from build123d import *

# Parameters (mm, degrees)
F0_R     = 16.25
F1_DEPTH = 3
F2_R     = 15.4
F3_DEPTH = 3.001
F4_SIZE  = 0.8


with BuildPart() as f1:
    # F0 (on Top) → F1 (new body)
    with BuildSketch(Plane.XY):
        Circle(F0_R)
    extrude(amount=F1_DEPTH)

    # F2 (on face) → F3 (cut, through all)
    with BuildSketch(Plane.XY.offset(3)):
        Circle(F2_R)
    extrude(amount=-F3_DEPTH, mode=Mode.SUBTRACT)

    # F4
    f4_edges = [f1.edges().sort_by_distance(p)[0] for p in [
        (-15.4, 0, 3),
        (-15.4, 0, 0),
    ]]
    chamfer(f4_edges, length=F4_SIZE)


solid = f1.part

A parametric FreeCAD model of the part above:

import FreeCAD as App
import Part
import Sketcher
from FreeCAD import Vector


def edges_at(feature, points):
    """Names of the edges that pass closest to the given points."""
    edges = feature.Shape.Edges
    near = lambda p: min(range(len(edges)), key=lambda i: edges[i].distToShape(Part.Vertex(*p))[0])
    return sorted({f"Edge{near(p) + 1}" for p in points})

doc = App.newDocument("Part")
params = doc.addObject("Spreadsheet::Sheet", "Params")
for row, (alias, value) in enumerate([
    ("sketch1_diameter", "32.5 mm"),
    ("pad1_length", "3 mm"),
    ("sketch2_diameter", "30.8 mm"),
    ("chamfer_size", "0.8 mm"),
], start=1):
    params.set(f"A{row}", alias)
    params.set(f"B{row}", "=" + value)
    params.setAlias(f"B{row}", alias)

body = doc.addObject("PartDesign::Body", "Body")

sketch1 = body.newObject("Sketcher::SketchObject", "Sketch")
sketch1.AttachmentSupport = (doc.getObject("XY_Plane"), [""])
sketch1.MapMode = "FlatFace"
sketch1.addGeometry(Part.Circle(Vector(0, 0, 0), Vector(0, 0, 1), 16), False)
sketch1.addConstraint([
    Sketcher.Constraint("Coincident", 0, 3, -1, 1),
    Sketcher.Constraint("Diameter", 0, 32.5),
])
sketch1.setExpression("Constraints[1]", "Params.sketch1_diameter")
pad1 = body.newObject("PartDesign::Pad", "Pad")
pad1.Profile = sketch1
pad1.setExpression("Length", "Params.pad1_length")

sketch2 = body.newObject("Sketcher::SketchObject", "Sketch001")
sketch2.AttachmentSupport = (doc.getObject("XY_Plane"), [""])
sketch2.MapMode = "FlatFace"
sketch2.AttachmentOffset = App.Placement(Vector(0, 0, 3), App.Rotation())
sketch2.addGeometry(Part.Circle(Vector(0, 0, 0), Vector(0, 0, 1), 15), False)
sketch2.addConstraint([
    Sketcher.Constraint("Coincident", 0, 3, -1, 1),
    Sketcher.Constraint("Diameter", 0, 30.8),
])
sketch2.setExpression("Constraints[1]", "Params.sketch2_diameter")
pocket1 = body.newObject("PartDesign::Pocket", "Pocket")
pocket1.Profile = sketch2
pocket1.Type = "ThroughAll"
doc.recompute()

chamfer = body.newObject("PartDesign::Chamfer", "Chamfer")
chamfer.Base = (pocket1, edges_at(pocket1, [(-15.4, 0, 3), (-15.4, 0, 0)]))
chamfer.setExpression("Size", "Params.chamfer_size")

doc.recompute()
